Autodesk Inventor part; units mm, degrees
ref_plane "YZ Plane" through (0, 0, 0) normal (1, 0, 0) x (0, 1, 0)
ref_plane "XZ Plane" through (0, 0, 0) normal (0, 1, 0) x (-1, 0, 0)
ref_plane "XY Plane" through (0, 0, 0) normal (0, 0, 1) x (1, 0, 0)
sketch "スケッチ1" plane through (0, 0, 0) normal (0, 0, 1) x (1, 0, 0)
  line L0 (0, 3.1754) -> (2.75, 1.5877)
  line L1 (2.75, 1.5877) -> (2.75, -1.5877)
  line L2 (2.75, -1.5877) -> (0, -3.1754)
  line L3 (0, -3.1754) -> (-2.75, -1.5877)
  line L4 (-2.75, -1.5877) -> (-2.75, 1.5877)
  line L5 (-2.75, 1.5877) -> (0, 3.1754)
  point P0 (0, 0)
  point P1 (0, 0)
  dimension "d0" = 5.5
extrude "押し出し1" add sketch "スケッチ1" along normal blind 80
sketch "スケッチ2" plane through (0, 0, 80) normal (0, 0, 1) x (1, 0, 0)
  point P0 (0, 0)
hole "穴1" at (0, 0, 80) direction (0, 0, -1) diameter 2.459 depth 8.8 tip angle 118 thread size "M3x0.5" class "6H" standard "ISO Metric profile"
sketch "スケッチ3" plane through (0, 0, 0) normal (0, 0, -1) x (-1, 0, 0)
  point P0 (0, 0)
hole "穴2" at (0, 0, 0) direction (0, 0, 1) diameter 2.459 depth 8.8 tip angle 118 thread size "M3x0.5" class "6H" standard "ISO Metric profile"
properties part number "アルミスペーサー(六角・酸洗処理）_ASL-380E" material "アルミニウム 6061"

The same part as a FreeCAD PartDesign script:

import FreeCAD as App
import Part
import Sketcher

V = App.Vector
Q = App.Units.Quantity

doc = App.newDocument("Part")
body = doc.addObject("PartDesign::Body", "Body")

# Sketch on XY plane
sketch1 = doc.addObject("Sketcher::SketchObject", "Sketch")
body.addObject(sketch1)
sketch1.AttachmentSupport = (doc.XY_Plane, [""])
sketch1.MapMode = "FlatFace"
sketch1.addGeometry([
    Part.LineSegment(V(2.8, 1.6, 0), V(0, 3.2, 0)),  # 0
    Part.LineSegment(V(0, 3.2, 0), V(-2.8, 1.6, 0)),  # 1
    Part.LineSegment(V(-2.8, 1.6, 0), V(-2.8, -1.6, 0)),  # 2
    Part.LineSegment(V(-2.8, -1.6, 0), V(0, -3.2, 0)),  # 3
    Part.LineSegment(V(0, -3.2, 0), V(2.8, -1.6, 0)),  # 4
    Part.LineSegment(V(2.8, -1.6, 0), V(2.8, 1.6, 0)),  # 5
], False)
sketch1.addConstraint([
    Sketcher.Constraint("Coincident", 0, 2, 1, 1),
    Sketcher.Constraint("Coincident", 1, 2, 2, 1),
    Sketcher.Constraint("Coincident", 2, 2, 3, 1),
    Sketcher.Constraint("Coincident", 3, 2, 4, 1),
    Sketcher.Constraint("Coincident", 4, 2, 5, 1),
    Sketcher.Constraint("Coincident", 5, 2, 0, 1),
    Sketcher.Constraint("Vertical", 2),
    Sketcher.Constraint("Vertical", 5),
    Sketcher.Constraint("Symmetric", 0, 2, 3, 2, -1, 1),
    Sketcher.Constraint("Symmetric", 1, 2, 4, 2, -1, 1),
    Sketcher.Constraint("PointOnObject", 0, 2, -2),
    Sketcher.Constraint("Parallel", 0, 3),
    Sketcher.Constraint("Horizontal", 2, 2, 4, 2),
    Sketcher.Constraint("DistanceX", 2, 2, 4, 2, 5.5),
    Sketcher.Constraint("Angle", 0, Q("150.0002 deg")),
    Sketcher.Constraint("DistanceY", 2, 2, 2, 1, 3.1754),
])
pad1 = doc.addObject("PartDesign::Pad", "Pad")
body.addObject(pad1)
pad1.Profile = sketch1
pad1.Length = 80

# Sketch on XY plane
sketch2 = doc.addObject("Sketcher::SketchObject", "Sketch001")
body.addObject(sketch2)
sketch2.AttachmentSupport = (doc.XY_Plane, [""])
sketch2.MapMode = "FlatFace"
sketch2.AttachmentOffset = App.Placement(V(0, 0, 80), App.Rotation())
sketch2.addGeometry(Part.Circle(V(0, 0, 0), V(0, 0, 1), 1.2), False)
sketch2.addConstraint([
    Sketcher.Constraint("Coincident", 0, 3, -1, 1),
    Sketcher.Constraint("Diameter", 0, 2.459),
])
doc.recompute()
hole = doc.addObject("PartDesign::Hole", "Hole")
body.addObject(hole)
hole.Profile = sketch2
hole.ThreadType = "None"
hole.Diameter = 2.459
hole.DepthType = "Dimension"
hole.Depth = 8.8
hole.DrillPoint = "Angled"
hole.DrillPointAngle = 118

# Sketch on XY plane
sketch3 = doc.addObject("Sketcher::SketchObject", "Sketch002")
body.addObject(sketch3)
sketch3.AttachmentSupport = (doc.XY_Plane, [""])
sketch3.MapMode = "FlatFace"
sketch3.addGeometry(Part.Circle(V(0, 0, 0), V(0, 0, 1), 1.2), False)
sketch3.addConstraint([
    Sketcher.Constraint("Coincident", 0, 3, -1, 1),
    Sketcher.Constraint("Diameter", 0, 2.459),
])
doc.recompute()
hole2 = doc.addObject("PartDesign::Hole", "Hole001")
body.addObject(hole2)
hole2.Profile = sketch3
hole2.ThreadType = "None"
hole2.Diameter = 2.459
hole2.DepthType = "Dimension"
hole2.Depth = 8.8
hole2.DrillPoint = "Angled"
hole2.DrillPointAngle = 118
hole2.Reversed = True

doc.recompute()
